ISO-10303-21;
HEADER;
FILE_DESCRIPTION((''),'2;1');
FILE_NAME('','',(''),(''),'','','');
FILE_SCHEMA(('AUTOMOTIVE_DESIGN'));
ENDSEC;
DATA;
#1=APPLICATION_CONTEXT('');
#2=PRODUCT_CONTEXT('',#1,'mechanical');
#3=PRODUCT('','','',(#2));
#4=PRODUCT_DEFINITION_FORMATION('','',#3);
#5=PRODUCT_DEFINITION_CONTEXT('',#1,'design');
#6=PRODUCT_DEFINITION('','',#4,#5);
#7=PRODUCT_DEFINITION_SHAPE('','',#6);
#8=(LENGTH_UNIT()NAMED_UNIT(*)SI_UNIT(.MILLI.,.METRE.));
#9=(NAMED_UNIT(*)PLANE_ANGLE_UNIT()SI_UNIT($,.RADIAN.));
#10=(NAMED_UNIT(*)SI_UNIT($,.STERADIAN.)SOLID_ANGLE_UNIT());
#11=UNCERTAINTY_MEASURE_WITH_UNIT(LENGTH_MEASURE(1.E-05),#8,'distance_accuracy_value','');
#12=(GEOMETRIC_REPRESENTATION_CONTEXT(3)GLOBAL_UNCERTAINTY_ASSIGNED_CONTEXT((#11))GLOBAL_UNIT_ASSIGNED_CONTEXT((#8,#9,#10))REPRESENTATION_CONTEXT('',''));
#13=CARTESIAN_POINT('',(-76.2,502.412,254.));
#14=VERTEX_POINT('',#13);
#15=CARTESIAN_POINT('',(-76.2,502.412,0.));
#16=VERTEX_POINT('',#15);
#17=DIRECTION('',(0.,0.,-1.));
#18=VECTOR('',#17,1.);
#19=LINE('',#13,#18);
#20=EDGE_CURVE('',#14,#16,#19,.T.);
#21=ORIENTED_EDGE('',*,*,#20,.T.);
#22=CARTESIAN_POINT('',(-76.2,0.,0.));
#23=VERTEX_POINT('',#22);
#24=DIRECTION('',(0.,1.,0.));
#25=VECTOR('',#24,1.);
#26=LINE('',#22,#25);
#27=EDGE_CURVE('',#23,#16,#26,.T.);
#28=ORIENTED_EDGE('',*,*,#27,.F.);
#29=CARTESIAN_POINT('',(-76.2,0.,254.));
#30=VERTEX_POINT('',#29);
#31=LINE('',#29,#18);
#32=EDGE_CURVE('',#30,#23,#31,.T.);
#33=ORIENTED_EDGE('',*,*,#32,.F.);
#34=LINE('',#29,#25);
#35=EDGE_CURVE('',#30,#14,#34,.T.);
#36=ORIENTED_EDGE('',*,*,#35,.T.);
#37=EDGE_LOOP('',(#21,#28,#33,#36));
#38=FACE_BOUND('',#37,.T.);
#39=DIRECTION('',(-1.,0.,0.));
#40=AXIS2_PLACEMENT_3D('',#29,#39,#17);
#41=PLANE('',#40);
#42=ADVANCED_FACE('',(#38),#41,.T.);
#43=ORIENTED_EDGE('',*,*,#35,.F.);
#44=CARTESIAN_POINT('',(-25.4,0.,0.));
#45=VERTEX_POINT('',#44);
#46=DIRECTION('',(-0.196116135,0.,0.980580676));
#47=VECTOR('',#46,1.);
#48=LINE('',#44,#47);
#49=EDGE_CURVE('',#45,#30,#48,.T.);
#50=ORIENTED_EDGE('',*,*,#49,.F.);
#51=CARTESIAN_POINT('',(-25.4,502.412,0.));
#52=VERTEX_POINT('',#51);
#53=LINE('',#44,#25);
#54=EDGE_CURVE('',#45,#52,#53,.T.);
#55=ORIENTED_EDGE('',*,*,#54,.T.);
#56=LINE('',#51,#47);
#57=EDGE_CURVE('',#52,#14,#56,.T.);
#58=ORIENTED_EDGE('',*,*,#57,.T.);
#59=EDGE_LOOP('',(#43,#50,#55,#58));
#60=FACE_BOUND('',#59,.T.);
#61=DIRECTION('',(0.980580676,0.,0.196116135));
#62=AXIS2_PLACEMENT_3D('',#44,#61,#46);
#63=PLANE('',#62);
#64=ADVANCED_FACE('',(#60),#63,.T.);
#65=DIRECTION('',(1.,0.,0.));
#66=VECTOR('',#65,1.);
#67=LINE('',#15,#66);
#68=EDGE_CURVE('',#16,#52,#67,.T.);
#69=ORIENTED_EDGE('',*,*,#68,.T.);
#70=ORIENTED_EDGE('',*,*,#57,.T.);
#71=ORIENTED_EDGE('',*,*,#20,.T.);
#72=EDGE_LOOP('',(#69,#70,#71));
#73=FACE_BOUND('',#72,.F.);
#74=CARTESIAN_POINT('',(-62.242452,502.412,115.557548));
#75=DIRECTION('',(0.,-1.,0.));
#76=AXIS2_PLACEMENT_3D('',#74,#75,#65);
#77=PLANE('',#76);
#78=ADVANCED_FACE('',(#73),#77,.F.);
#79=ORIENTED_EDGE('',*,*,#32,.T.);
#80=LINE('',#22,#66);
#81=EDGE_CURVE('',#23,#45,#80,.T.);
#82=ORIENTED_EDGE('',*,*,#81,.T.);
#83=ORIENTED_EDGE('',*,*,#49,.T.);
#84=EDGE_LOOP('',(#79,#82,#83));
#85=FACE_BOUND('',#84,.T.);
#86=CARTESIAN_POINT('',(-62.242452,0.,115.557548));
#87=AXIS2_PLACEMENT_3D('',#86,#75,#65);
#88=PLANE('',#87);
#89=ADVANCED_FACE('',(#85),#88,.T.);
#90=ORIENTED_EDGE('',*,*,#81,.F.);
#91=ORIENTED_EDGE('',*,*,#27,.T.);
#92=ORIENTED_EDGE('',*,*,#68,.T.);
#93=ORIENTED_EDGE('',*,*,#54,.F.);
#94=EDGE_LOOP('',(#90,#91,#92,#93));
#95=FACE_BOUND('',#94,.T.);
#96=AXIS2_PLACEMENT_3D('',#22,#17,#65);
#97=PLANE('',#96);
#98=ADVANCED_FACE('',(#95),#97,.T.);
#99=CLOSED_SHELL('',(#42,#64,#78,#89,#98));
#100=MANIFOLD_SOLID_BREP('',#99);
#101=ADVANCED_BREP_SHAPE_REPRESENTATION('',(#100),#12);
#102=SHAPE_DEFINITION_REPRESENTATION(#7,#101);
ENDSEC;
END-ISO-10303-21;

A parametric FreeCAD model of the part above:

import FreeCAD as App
import Part
import Sketcher
Q = App.Units.Quantity

doc = App.newDocument("Part")
body = doc.addObject("PartDesign::Body", "Body")

# Sketch on XZ plane
sketch1 = doc.addObject("Sketcher::SketchObject", "Sketch")
body.addObject(sketch1)
sketch1.AttachmentSupport = (doc.XZ_Plane, [""])
sketch1.MapMode = "FlatFace"
sketch1.addGeometry(Part.LineSegment(App.Vector(-76, 254, 0), App.Vector(-76, 0, 0)), False)
sketch1.addGeometry(Part.LineSegment(App.Vector(-76, 0, 0), App.Vector(-25, 0, 0)), False)
sketch1.addGeometry(Part.LineSegment(App.Vector(-25, 0, 0), App.Vector(-76, 254, 0)), False)
sketch1.addConstraint(Sketcher.Constraint("Coincident", 0, 2, 1, 1))
sketch1.addConstraint(Sketcher.Constraint("Coincident", 1, 2, 2, 1))
sketch1.addConstraint(Sketcher.Constraint("Coincident", 2, 2, 0, 1))
sketch1.addConstraint(Sketcher.Constraint("Vertical", 0))
sketch1.addConstraint(Sketcher.Constraint("Horizontal", 1))
sketch1.addConstraint(Sketcher.Constraint("PointOnObject", 0, 2, -1))
sketch1.addConstraint(Sketcher.Constraint("DistanceX", 1, 1, 1, 2, Q("2 in")))
sketch1.addConstraint(Sketcher.Constraint("DistanceY", 0, 2, 0, 1, Q("10 in")))
sketch1.addConstraint(Sketcher.Constraint("DistanceX", 0, 2, -1, 1, Q("3 in")))
pad1 = doc.addObject("PartDesign::Pad", "Pad")
body.addObject(pad1)
pad1.Profile = sketch1
pad1.Length = Q("19.78 in")
pad1.Reversed = True

doc.recompute()
